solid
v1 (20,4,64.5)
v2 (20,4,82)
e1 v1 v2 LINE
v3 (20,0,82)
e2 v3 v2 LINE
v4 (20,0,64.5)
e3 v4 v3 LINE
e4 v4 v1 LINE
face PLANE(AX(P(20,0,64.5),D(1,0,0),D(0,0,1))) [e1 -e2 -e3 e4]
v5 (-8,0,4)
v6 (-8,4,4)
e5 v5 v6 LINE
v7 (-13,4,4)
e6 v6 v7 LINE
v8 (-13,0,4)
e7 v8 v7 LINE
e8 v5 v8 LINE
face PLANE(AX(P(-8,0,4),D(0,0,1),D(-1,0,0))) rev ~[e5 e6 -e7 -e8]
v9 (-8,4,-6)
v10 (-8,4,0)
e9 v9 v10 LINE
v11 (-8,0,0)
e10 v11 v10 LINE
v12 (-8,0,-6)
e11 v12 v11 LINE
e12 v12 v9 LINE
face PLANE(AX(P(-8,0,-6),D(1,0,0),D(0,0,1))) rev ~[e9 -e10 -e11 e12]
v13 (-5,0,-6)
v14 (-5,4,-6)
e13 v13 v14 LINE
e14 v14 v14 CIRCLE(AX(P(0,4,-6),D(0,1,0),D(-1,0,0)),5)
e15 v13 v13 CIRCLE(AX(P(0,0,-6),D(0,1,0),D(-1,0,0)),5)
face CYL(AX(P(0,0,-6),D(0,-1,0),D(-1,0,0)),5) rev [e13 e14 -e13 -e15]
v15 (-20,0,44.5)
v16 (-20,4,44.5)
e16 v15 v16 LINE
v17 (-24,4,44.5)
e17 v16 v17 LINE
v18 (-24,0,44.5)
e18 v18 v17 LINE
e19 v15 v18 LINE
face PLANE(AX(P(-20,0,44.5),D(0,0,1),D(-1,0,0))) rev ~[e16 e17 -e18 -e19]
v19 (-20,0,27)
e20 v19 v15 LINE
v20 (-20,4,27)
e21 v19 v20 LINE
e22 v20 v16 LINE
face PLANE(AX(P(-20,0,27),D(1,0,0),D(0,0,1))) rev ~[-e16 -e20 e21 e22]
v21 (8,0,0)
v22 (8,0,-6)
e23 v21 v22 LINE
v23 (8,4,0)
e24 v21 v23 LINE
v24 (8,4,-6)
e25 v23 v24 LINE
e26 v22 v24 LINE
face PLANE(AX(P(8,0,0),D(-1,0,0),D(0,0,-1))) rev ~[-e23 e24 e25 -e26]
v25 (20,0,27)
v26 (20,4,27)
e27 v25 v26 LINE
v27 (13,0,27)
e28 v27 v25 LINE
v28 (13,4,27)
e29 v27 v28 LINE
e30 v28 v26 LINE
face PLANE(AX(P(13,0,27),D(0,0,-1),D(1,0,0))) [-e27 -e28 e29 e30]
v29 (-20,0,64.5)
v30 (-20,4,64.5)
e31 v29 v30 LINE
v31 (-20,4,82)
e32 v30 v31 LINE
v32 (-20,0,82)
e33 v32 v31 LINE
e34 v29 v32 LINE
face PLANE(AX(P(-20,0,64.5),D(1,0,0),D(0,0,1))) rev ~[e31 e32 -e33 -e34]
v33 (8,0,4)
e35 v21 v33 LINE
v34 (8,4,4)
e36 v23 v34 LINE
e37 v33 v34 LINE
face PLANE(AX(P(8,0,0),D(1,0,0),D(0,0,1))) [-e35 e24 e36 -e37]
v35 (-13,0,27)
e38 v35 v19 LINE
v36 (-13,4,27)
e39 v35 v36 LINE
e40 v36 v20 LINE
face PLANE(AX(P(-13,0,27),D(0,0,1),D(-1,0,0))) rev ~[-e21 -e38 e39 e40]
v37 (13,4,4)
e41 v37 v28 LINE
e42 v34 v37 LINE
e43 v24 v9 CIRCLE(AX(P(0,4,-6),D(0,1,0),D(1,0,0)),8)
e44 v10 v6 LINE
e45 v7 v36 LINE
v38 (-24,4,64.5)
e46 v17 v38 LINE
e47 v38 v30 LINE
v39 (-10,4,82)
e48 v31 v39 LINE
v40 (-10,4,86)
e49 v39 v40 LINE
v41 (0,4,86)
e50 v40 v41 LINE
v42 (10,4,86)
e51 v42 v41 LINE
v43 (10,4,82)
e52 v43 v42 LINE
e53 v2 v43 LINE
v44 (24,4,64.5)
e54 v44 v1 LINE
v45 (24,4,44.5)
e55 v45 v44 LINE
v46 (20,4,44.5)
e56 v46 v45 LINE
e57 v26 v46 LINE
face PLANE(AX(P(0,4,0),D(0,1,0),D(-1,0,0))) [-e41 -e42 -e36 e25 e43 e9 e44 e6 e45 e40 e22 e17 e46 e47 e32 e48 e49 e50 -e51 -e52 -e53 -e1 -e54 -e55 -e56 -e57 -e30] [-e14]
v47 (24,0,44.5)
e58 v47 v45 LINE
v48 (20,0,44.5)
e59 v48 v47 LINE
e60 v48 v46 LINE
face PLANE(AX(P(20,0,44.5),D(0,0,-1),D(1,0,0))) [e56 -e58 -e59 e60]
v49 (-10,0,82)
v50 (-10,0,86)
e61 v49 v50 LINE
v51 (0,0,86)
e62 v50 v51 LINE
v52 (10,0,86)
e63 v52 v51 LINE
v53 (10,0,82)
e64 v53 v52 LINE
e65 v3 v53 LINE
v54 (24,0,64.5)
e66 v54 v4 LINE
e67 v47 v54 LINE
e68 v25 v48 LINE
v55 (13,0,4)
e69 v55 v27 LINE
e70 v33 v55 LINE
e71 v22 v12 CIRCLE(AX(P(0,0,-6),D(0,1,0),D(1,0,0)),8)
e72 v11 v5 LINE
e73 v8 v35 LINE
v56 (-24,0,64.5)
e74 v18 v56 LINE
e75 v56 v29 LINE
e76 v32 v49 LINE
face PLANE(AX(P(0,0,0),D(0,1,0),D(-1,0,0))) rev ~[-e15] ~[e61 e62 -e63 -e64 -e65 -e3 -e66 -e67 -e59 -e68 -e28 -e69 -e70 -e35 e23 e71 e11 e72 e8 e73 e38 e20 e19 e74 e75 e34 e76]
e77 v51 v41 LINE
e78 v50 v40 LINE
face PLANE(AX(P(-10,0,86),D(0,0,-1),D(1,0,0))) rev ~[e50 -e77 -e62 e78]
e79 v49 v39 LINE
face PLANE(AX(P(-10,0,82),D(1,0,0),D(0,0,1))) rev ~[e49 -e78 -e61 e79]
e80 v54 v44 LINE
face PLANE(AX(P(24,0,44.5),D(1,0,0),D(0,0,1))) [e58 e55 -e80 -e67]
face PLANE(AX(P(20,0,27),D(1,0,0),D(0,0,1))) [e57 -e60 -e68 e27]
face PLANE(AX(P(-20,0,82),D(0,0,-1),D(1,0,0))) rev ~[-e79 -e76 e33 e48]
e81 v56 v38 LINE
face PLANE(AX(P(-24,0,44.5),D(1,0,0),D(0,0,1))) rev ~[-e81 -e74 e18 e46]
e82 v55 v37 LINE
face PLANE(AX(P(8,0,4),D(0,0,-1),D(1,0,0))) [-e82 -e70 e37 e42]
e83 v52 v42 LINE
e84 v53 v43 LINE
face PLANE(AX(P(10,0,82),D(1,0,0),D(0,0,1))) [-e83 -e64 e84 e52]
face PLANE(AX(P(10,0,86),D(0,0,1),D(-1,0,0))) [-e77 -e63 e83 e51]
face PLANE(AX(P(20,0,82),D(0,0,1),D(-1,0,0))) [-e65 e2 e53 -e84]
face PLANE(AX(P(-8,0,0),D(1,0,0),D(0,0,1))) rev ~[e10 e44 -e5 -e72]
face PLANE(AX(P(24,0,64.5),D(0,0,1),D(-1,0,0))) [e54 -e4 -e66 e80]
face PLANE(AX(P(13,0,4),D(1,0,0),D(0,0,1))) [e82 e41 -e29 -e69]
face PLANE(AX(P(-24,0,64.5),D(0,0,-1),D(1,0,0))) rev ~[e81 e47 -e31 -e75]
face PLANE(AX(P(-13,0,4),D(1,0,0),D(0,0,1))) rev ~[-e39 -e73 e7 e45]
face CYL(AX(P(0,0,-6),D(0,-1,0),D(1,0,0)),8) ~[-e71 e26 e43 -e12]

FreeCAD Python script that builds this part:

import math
import FreeCAD as App
import Part
import Sketcher

V = App.Vector

doc = App.newDocument("Part")
body = doc.addObject("PartDesign::Body", "Body")

# Sketch on XZ plane
sketch1 = doc.addObject("Sketcher::SketchObject", "Sketch")
body.addObject(sketch1)
sketch1.AttachmentSupport = (doc.XZ_Plane, [""])
sketch1.MapMode = "FlatFace"
sketch1.addGeometry([
    Part.LineSegment(V(-8, -6, 0), V(-8, 4, 0)),  # 0
    Part.LineSegment(V(-8, 4, 0), V(-13, 4, 0)),  # 1
    Part.LineSegment(V(-13, 4, 0), V(-13, 27, 0)),  # 2
    Part.LineSegment(V(-13, 27, 0), V(-20, 27, 0)),  # 3
    Part.LineSegment(V(-20, 27, 0), V(-20, 44.5, 0)),  # 4
    Part.LineSegment(V(-20, 44.5, 0), V(-24, 44.5, 0)),  # 5
    Part.LineSegment(V(-24, 44.5, 0), V(-24, 64.5, 0)),  # 6
    Part.LineSegment(V(-24, 64.5, 0), V(-20, 64.5, 0)),  # 7
    Part.LineSegment(V(-20, 64.5, 0), V(-20, 82, 0)),  # 8
    Part.LineSegment(V(-20, 82, 0), V(-10, 82, 0)),  # 9
    Part.LineSegment(V(-10, 82, 0), V(-10, 86, 0)),  # 10
    Part.LineSegment(V(-10, 86, 0), V(10, 86, 0)),  # 11
    Part.LineSegment(V(10, 86, 0), V(10, 82, 0)),  # 12
    Part.LineSegment(V(10, 82, 0), V(20, 82, 0)),  # 13
    Part.LineSegment(V(20, 82, 0), V(20, 64.5, 0)),  # 14
    Part.LineSegment(V(20, 64.5, 0), V(24, 64.5, 0)),  # 15
    Part.LineSegment(V(24, 64.5, 0), V(24, 44.5, 0)),  # 16
    Part.LineSegment(V(24, 44.5, 0), V(20, 44.5, 0)),  # 17
    Part.LineSegment(V(20, 44.5, 0), V(20, 27, 0)),  # 18
    Part.LineSegment(V(20, 27, 0), V(13, 27, 0)),  # 19
    Part.LineSegment(V(13, 27, 0), V(13, 4, 0)),  # 20
    Part.LineSegment(V(13, 4, 0), V(8, 4, 0)),  # 21
    Part.LineSegment(V(8, 4, 0), V(8, -6, 0)),  # 22
    Part.ArcOfCircle(Part.Circle(V(0, -6, 0), V(0, 0, 1), 8), math.radians(180), math.radians(360)),  # 23
    Part.Circle(V(0, -6, 0), V(0, 0, 1), 5),  # 24
], False)
sketch1.addConstraint([
    Sketcher.Constraint("Coincident", 0, 2, 1, 1),
    Sketcher.Constraint("Coincident", 1, 2, 2, 1),
    Sketcher.Constraint("Coincident", 2, 2, 3, 1),
    Sketcher.Constraint("Coincident", 3, 2, 4, 1),
    Sketcher.Constraint("Coincident", 4, 2, 5, 1),
    Sketcher.Constraint("Coincident", 5, 2, 6, 1),
    Sketcher.Constraint("Coincident", 6, 2, 7, 1),
    Sketcher.Constraint("Coincident", 7, 2, 8, 1),
    Sketcher.Constraint("Coincident", 8, 2, 9, 1),
    Sketcher.Constraint("Coincident", 9, 2, 10, 1),
    Sketcher.Constraint("Coincident", 10, 2, 11, 1),
    Sketcher.Constraint("Coincident", 11, 2, 12, 1),
    Sketcher.Constraint("Coincident", 12, 2, 13, 1),
    Sketcher.Constraint("Coincident", 13, 2, 14, 1),
    Sketcher.Constraint("Coincident", 14, 2, 15, 1),
    Sketcher.Constraint("Coincident", 15, 2, 16, 1),
    Sketcher.Constraint("Coincident", 16, 2, 17, 1),
    Sketcher.Constraint("Coincident", 17, 2, 18, 1),
    Sketcher.Constraint("Coincident", 18, 2, 19, 1),
    Sketcher.Constraint("Coincident", 19, 2, 20, 1),
    Sketcher.Constraint("Coincident", 20, 2, 21, 1),
    Sketcher.Constraint("Coincident", 21, 2, 22, 1),
    Sketcher.Constraint("Tangent", 22, 2, 23, 2),
    Sketcher.Constraint("Tangent", 23, 1, 0, 1),
    Sketcher.Constraint("Vertical", 0),
    Sketcher.Constraint("Horizontal", 1),
    Sketcher.Constraint("Vertical", 2),
    Sketcher.Constraint("Horizontal", 3),
    Sketcher.Constraint("Vertical", 4),
    Sketcher.Constraint("Horizontal", 5),
    Sketcher.Constraint("Vertical", 6),
    Sketcher.Constraint("Horizontal", 7),
    Sketcher.Constraint("Vertical", 8),
    Sketcher.Constraint("Horizontal", 9),
    Sketcher.Constraint("Vertical", 10),
    Sketcher.Constraint("Horizontal", 11),
    Sketcher.Constraint("Vertical", 12),
    Sketcher.Constraint("Horizontal", 13),
    Sketcher.Constraint("Vertical", 14),
    Sketcher.Constraint("Horizontal", 15),
    Sketcher.Constraint("Vertical", 16),
    Sketcher.Constraint("Horizontal", 17),
    Sketcher.Constraint("Vertical", 18),
    Sketcher.Constraint("Horizontal", 19),
    Sketcher.Constraint("Vertical", 20),
    Sketcher.Constraint("Horizontal", 21),
    Sketcher.Constraint("Vertical", 22),
    Sketcher.Constraint("Coincident", 24, 3, 23, 3),
    Sketcher.Constraint("Symmetric", 9, 2, 12, 2, -2),
    Sketcher.Constraint("Symmetric", 7, 2, 14, 2, -2),
    Sketcher.Constraint("Symmetric", 5, 2, 16, 2, -2),
    Sketcher.Constraint("Symmetric", 3, 2, 18, 2, -2),
    Sketcher.Constraint("Symmetric", 1, 2, 20, 2, -2),
    Sketcher.Constraint("PointOnObject", 23, 3, -2),
    Sketcher.Constraint("Vertical", 4, 2, 7, 2),
    Sketcher.Constraint("Equal", 13, 0),
    Sketcher.Constraint("Equal", 11, 6),
    Sketcher.Constraint("Equal", 4, 8),
    Sketcher.Constraint("Equal", 17, 10),
    Sketcher.Constraint("Diameter", 24, 10.0),
    Sketcher.Constraint("Radius", 23, 8.0),
    Sketcher.Constraint("DistanceX", 5, 2, 5, 1, 4.0),
    Sketcher.Constraint("DistanceX", 9, 1, 9, 2, 10.0),
    Sketcher.Constraint("DistanceX", 11, 1, 11, 2, 20.0),
    Sketcher.Constraint("DistanceY", 2, 1, 2, 2, 23.0),
    Sketcher.Constraint("DistanceY", 23, 3, -1, 1, 6.0),
    Sketcher.Constraint("DistanceY", 3, 2, 8, 2, 55.0),
    Sketcher.Constraint("DistanceX", 2, 2, 19, 2, 26.0),
])
pad1 = doc.addObject("PartDesign::Pad", "Pad")
body.addObject(pad1)
pad1.Profile = sketch1
pad1.Length = 4
pad1.Reversed = True

doc.recompute()
